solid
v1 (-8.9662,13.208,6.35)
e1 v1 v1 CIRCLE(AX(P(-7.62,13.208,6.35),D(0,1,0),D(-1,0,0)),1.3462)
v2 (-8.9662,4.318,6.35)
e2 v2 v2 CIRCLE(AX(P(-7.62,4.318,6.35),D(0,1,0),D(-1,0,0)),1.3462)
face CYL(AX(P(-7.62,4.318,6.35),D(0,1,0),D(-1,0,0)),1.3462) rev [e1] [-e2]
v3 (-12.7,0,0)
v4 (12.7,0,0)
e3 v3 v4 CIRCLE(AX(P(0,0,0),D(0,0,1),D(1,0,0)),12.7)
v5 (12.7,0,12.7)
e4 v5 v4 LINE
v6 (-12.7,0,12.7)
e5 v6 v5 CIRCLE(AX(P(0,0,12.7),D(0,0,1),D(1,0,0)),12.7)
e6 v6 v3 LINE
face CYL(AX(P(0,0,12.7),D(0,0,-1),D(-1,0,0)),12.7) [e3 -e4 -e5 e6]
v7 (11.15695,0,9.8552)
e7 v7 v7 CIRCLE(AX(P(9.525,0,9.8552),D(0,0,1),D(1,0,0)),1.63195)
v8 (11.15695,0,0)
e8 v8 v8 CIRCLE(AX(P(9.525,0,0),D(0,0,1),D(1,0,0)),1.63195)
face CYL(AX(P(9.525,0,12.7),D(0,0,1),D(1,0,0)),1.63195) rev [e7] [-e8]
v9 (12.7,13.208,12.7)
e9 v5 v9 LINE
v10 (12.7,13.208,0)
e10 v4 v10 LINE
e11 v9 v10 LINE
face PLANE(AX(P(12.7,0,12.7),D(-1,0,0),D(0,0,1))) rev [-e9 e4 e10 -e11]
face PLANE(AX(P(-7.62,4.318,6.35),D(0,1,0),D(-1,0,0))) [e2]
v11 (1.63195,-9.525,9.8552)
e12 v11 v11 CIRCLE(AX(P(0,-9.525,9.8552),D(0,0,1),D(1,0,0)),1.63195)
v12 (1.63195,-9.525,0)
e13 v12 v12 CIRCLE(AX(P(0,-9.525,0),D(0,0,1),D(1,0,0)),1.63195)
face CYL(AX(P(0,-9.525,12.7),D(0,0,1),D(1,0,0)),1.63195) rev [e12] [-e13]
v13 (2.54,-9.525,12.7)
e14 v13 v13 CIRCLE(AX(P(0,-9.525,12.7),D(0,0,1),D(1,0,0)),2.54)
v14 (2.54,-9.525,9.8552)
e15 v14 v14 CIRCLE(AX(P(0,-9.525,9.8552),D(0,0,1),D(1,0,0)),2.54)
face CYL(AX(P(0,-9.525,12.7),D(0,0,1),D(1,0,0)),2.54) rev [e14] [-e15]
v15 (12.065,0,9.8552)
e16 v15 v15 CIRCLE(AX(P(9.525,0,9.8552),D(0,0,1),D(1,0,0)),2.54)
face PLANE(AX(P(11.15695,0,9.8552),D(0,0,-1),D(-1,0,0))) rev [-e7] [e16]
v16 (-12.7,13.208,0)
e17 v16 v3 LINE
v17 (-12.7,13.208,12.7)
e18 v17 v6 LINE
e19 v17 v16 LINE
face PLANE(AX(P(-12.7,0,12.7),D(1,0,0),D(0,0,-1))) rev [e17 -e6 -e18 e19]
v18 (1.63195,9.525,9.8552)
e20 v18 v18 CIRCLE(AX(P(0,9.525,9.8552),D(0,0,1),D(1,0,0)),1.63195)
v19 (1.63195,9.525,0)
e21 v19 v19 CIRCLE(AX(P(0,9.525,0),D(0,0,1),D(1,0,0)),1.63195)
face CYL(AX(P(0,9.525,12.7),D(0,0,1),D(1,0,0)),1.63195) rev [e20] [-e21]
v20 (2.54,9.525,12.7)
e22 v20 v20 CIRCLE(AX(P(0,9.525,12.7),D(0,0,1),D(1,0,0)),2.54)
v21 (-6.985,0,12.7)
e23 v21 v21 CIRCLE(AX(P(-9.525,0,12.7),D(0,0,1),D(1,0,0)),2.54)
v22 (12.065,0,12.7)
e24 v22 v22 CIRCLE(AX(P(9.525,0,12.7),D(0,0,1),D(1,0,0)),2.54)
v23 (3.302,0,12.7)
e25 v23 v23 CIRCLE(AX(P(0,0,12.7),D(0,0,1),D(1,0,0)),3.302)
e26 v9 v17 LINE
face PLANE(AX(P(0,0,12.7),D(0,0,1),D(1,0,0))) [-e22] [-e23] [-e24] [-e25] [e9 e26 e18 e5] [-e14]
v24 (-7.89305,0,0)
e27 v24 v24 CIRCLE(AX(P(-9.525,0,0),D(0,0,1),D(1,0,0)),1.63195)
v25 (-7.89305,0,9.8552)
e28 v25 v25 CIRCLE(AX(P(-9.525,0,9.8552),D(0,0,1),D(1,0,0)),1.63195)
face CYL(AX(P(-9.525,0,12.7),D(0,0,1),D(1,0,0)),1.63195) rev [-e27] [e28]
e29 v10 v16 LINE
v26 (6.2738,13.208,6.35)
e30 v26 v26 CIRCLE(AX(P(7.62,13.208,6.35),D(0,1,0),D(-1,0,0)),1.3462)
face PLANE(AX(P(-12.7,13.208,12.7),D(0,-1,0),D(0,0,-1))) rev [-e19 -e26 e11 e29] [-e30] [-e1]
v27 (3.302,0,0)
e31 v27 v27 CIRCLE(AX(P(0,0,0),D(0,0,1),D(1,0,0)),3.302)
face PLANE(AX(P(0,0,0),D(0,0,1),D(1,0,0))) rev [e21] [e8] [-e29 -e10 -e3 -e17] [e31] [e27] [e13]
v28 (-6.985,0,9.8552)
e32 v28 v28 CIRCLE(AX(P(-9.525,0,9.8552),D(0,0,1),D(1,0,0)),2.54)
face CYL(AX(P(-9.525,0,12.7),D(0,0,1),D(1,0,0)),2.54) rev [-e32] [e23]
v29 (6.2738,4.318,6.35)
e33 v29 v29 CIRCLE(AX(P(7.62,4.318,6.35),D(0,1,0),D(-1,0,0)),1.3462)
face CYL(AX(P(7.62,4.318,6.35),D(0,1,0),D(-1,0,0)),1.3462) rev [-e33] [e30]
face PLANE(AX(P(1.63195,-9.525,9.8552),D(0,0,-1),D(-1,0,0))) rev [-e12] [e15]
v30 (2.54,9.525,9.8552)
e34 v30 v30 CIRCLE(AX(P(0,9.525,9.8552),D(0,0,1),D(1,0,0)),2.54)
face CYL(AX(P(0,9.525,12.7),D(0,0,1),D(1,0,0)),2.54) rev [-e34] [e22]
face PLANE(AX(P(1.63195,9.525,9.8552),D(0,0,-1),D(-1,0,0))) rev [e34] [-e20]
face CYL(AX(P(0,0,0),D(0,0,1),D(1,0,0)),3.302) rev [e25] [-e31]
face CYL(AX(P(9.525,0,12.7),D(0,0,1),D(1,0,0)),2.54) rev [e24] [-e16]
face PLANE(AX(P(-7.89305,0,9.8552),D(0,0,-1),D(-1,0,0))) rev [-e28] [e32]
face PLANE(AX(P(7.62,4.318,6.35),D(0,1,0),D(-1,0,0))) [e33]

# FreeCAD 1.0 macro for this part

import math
import FreeCAD as App
import Part
import Sketcher
Q = App.Units.Quantity

doc = App.newDocument("Part")
body = doc.addObject("PartDesign::Body", "Body")

sketch1 = body.newObject("Sketcher::SketchObject", "Sketch")
sketch1.AttachmentSupport = (doc.getObject("XY_Plane"), [""])
sketch1.MapMode = "FlatFace"
sketch1.addGeometry([
    Part.LineSegment(App.Vector(-13, 13, 0), App.Vector(-13, 0, 0)),
    Part.ArcOfCircle(Part.Circle(App.Vector(0, 0, 0), App.Vector(0, 0, 1), 13), math.radians(180), math.radians(360)),
    Part.LineSegment(App.Vector(13, 0, 0), App.Vector(13, 13, 0)),
    Part.LineSegment(App.Vector(13, 13, 0), App.Vector(-13, 13, 0)),
], False)
sketch1.addConstraint([
    Sketcher.Constraint("Tangent", 0, 2, 1, 1),
    Sketcher.Constraint("Tangent", 1, 2, 2, 1),
    Sketcher.Constraint("Coincident", 2, 2, 3, 1),
    Sketcher.Constraint("Coincident", 3, 2, 0, 1),
    Sketcher.Constraint("Vertical", 0),
    Sketcher.Constraint("Vertical", 2),
    Sketcher.Constraint("Horizontal", 3),
    Sketcher.Constraint("Coincident", 1, 3, -1, 1),
    Sketcher.Constraint("Radius", 1, Q("0.5 in")),
    Sketcher.Constraint("DistanceY", 0, 2, 0, 1, Q("0.52 in")),
])
pad1 = body.newObject("PartDesign::Pad", "Pad")
pad1.Profile = sketch1
pad1.Length = Q("0.5 in")

sketch2 = body.newObject("Sketcher::SketchObject", "Sketch001")
sketch2.AttachmentSupport = (doc.getObject("XY_Plane"), [""])
sketch2.MapMode = "FlatFace"
sketch2.AttachmentOffset = App.Placement(App.Vector(0, 0, 0.5 * 25.4), App.Rotation())
sketch2.addGeometry(Part.Circle(App.Vector(0, 0, 0), App.Vector(0, 0, 1), 3.3), False)
sketch2.addConstraint([
    Sketcher.Constraint("Coincident", 0, 3, -1, 1),
    Sketcher.Constraint("Diameter", 0, Q("0.26 in")),
])
pocket1 = body.newObject("PartDesign::Pocket", "Pocket")
pocket1.Profile = sketch2
pocket1.Length = Q("0.5 in")

sketch3 = body.newObject("Sketcher::SketchObject", "Sketch002")
sketch3.AttachmentSupport = (doc.getObject("XY_Plane"), [""])
sketch3.MapMode = "FlatFace"
sketch3.AttachmentOffset = App.Placement(App.Vector(0, 0, 0.5 * 25.4), App.Rotation())
sketch3.addGeometry([
    Part.Circle(App.Vector(-9.5, 0, 0), App.Vector(0, 0, 1), 1.6),
    Part.Circle(App.Vector(0, 9.5, 0), App.Vector(0, 0, 1), 1.6),
    Part.Circle(App.Vector(9.5, 0, 0), App.Vector(0, 0, 1), 1.6),
    Part.Circle(App.Vector(0, -9.5, 0), App.Vector(0, 0, 1), 1.6),
], False)
sketch3.addConstraint([
    Sketcher.Constraint("Equal", 0, 1),
    Sketcher.Constraint("Equal", 1, 2),
    Sketcher.Constraint("Equal", 2, 3),
    Sketcher.Constraint("Symmetric", 0, 3, 2, 3, -1, 1),
    Sketcher.Constraint("Symmetric", 1, 3, 3, 3, -1, 1),
    Sketcher.Constraint("PointOnObject", 0, 3, -1),
    Sketcher.Constraint("PointOnObject", 1, 3, -2),
    Sketcher.Constraint("Diameter", 0, Q("0.1285 in")),
    Sketcher.Constraint("DistanceX", 0, 3, 2, 3, Q("0.75 in")),
    Sketcher.Constraint("DistanceY", 3, 3, 1, 3, Q("0.75 in")),
])
doc.recompute()
hole = body.newObject("PartDesign::Hole", "Hole")
hole.Profile = sketch3
hole.ThreadType = "None"
hole.Diameter = Q("0.1285 in")
hole.DepthType = "ThroughAll"
hole.HoleCutType = "Counterbore"
hole.HoleCutDiameter = Q("0.2 in")
hole.HoleCutDepth = Q("0.112 in")

sketch4 = body.newObject("Sketcher::SketchObject", "Sketch003")
sketch4.AttachmentSupport = (doc.getObject("XZ_Plane"), [""])
sketch4.MapMode = "FlatFace"
sketch4.AttachmentOffset = App.Placement(App.Vector(0, 0, -0.52 * 25.4), App.Rotation())
sketch4.addGeometry([
    Part.Circle(App.Vector(-7.6, 6.3, 0), App.Vector(0, 0, 1), 1.3),
    Part.Circle(App.Vector(7.6, 6.3, 0), App.Vector(0, 0, 1), 1.3),
], False)
sketch4.addConstraint([
    Sketcher.Constraint("Equal", 0, 1),
    Sketcher.Constraint("Symmetric", 0, 3, 1, 3, -2),
    Sketcher.Constraint("Diameter", 0, Q("0.106 in")),
    Sketcher.Constraint("DistanceX", 0, 3, -1, 1, Q("0.3 in")),
    Sketcher.Constraint("DistanceY", -1, 1, 0, 3, Q("0.25 in")),
])
pocket2 = body.newObject("PartDesign::Pocket", "Pocket001")
pocket2.Profile = sketch4
pocket2.Length = Q("0.35 in")
pocket2.Reversed = True

doc.recompute()
